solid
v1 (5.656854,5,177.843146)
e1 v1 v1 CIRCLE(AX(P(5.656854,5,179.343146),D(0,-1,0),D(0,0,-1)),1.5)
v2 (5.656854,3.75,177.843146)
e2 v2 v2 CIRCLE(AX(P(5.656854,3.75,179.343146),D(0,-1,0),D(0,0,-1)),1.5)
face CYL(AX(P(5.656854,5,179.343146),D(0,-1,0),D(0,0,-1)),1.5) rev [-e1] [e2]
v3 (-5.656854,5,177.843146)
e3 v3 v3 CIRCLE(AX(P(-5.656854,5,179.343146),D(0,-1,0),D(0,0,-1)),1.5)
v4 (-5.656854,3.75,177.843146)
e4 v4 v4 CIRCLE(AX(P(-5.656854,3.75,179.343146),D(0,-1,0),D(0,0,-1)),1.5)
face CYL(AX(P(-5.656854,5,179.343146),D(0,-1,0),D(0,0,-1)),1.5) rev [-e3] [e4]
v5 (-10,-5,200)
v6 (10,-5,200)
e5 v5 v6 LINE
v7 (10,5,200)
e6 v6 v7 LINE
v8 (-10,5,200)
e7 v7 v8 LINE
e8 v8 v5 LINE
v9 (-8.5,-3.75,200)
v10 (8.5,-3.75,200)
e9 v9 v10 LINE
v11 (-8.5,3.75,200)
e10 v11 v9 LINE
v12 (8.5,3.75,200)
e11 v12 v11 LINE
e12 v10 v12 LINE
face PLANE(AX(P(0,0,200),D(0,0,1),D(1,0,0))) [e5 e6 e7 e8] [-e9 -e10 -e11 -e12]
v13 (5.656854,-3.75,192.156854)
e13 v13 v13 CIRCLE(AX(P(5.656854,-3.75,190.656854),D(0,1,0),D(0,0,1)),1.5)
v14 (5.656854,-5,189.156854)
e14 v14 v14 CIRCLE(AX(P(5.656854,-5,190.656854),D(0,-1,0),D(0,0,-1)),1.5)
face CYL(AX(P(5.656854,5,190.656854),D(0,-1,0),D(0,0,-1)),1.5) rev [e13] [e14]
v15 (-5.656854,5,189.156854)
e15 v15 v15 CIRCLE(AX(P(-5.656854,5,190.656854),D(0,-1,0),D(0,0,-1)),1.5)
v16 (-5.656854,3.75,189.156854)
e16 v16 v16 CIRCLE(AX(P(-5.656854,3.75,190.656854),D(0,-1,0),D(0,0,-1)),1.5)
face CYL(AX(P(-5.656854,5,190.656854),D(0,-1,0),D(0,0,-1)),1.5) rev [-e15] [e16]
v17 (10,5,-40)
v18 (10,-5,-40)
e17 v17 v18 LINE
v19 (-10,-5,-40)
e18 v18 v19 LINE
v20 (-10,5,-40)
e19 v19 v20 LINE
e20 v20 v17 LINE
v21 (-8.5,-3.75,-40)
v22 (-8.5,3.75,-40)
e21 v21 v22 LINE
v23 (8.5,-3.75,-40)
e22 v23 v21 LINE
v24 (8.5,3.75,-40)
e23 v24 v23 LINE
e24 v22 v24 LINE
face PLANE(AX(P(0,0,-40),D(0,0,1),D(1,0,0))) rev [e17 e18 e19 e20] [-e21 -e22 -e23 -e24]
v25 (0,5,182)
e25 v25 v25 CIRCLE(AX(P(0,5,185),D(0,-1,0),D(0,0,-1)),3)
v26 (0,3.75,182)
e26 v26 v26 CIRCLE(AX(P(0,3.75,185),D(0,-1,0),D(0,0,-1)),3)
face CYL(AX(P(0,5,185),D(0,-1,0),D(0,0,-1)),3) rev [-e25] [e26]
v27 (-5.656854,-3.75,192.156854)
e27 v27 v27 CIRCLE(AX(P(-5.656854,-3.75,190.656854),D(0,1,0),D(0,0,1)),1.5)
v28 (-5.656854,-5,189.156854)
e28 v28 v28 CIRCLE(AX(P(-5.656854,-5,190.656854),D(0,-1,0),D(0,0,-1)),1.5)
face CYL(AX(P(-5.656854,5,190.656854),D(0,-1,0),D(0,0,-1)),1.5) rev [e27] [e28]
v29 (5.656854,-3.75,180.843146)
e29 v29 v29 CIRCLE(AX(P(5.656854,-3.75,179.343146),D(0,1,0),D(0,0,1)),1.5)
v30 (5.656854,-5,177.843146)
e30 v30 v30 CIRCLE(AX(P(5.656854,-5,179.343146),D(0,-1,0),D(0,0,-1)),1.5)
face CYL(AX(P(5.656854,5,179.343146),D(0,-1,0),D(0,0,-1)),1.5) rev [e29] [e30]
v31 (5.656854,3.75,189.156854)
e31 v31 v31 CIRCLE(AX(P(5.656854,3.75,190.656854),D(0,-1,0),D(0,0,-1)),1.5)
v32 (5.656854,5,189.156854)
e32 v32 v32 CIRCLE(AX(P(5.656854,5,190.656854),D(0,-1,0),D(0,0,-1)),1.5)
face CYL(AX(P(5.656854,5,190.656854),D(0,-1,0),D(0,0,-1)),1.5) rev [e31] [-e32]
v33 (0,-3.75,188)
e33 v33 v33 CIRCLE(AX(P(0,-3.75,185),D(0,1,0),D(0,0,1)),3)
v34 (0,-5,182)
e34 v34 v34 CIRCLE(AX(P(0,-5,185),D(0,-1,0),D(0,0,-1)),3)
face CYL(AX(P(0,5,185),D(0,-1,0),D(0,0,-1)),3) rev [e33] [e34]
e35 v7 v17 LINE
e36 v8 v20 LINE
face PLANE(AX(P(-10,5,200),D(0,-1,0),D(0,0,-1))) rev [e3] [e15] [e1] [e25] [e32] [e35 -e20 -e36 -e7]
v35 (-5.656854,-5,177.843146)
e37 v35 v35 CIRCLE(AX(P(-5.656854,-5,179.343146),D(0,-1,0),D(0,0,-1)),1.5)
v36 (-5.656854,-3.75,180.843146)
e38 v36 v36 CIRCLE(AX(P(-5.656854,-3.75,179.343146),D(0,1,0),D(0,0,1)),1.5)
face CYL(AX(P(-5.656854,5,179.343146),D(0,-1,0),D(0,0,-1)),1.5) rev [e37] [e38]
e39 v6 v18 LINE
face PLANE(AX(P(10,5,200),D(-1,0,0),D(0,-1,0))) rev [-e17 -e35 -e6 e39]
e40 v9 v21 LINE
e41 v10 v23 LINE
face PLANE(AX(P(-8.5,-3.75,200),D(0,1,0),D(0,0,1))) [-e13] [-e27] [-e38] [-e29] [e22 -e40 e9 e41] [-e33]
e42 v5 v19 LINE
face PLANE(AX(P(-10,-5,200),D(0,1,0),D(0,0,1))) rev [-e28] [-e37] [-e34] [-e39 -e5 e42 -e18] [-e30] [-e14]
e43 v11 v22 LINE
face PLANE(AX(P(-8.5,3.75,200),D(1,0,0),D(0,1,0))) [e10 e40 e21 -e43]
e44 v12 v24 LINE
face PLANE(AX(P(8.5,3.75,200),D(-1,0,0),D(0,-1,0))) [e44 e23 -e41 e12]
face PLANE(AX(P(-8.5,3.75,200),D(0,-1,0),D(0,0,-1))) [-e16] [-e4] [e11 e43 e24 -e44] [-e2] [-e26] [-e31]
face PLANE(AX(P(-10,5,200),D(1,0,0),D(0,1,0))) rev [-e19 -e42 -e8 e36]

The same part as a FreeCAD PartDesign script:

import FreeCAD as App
import Part
import Sketcher

doc = App.newDocument("Part")
params = doc.addObject("Spreadsheet::Sheet", "Params")
for row, (alias, value) in enumerate([
    ("sketch1_width", "20 mm"),
    ("sketch1_width2", "17 mm"),
    ("sketch1_height", "10 mm"),
    ("sketch1_height2", "7.5 mm"),
    ("pad1_length", "200 mm"),
    ("sketch2_diameter", "6 mm"),
    ("pocket1_length", "10 mm"),
    ("sketch3_diameter", "3 mm"),
    ("pocket2_length", "10 mm"),
    ("sketch4_width", "20 mm"),
    ("sketch4_width2", "17 mm"),
    ("sketch4_height", "10 mm"),
    ("sketch4_height2", "7.5 mm"),
    ("pad2_length", "40 mm"),
], start=1):
    params.set(f"A{row}", alias)
    params.set(f"B{row}", "=" + value)
    params.setAlias(f"B{row}", alias)

body = doc.addObject("PartDesign::Body", "Body")

# Sketch on XY plane
sketch1 = body.newObject("Sketcher::SketchObject", "Sketch")
sketch1.AttachmentSupport = (doc.getObject("XY_Plane"), [""])
sketch1.MapMode = "FlatFace"
sketch1.addGeometry(Part.LineSegment(App.Vector(-10, 5, 0), App.Vector(-10, -5, 0)), False)
sketch1.addGeometry(Part.LineSegment(App.Vector(-10, -5, 0), App.Vector(10, -5, 0)), False)
sketch1.addGeometry(Part.LineSegment(App.Vector(10, -5, 0), App.Vector(10, 5, 0)), False)
sketch1.addGeometry(Part.LineSegment(App.Vector(10, 5, 0), App.Vector(-10, 5, 0)), False)
sketch1.addGeometry(Part.LineSegment(App.Vector(8.5, -3.75, 0), App.Vector(-8.5, -3.75, 0)), False)
sketch1.addGeometry(Part.LineSegment(App.Vector(-8.5, -3.75, 0), App.Vector(-8.5, 3.75, 0)), False)
sketch1.addGeometry(Part.LineSegment(App.Vector(-8.5, 3.75, 0), App.Vector(8.5, 3.75, 0)), False)
sketch1.addGeometry(Part.LineSegment(App.Vector(8.5, 3.75, 0), App.Vector(8.5, -3.75, 0)), False)
sketch1.addConstraint(Sketcher.Constraint("Coincident", 0, 2, 1, 1))
sketch1.addConstraint(Sketcher.Constraint("Coincident", 1, 2, 2, 1))
sketch1.addConstraint(Sketcher.Constraint("Coincident", 2, 2, 3, 1))
sketch1.addConstraint(Sketcher.Constraint("Coincident", 3, 2, 0, 1))
sketch1.addConstraint(Sketcher.Constraint("Coincident", 4, 2, 5, 1))
sketch1.addConstraint(Sketcher.Constraint("Coincident", 5, 2, 6, 1))
sketch1.addConstraint(Sketcher.Constraint("Coincident", 6, 2, 7, 1))
sketch1.addConstraint(Sketcher.Constraint("Coincident", 7, 2, 4, 1))
sketch1.addConstraint(Sketcher.Constraint("Vertical", 0))
sketch1.addConstraint(Sketcher.Constraint("Horizontal", 1))
sketch1.addConstraint(Sketcher.Constraint("Vertical", 2))
sketch1.addConstraint(Sketcher.Constraint("Horizontal", 3))
sketch1.addConstraint(Sketcher.Constraint("Horizontal", 4))
sketch1.addConstraint(Sketcher.Constraint("Vertical", 5))
sketch1.addConstraint(Sketcher.Constraint("Horizontal", 6))
sketch1.addConstraint(Sketcher.Constraint("Vertical", 7))
sketch1.addConstraint(Sketcher.Constraint("Symmetric", 0, 2, 2, 2, -1, 1))
sketch1.addConstraint(Sketcher.Constraint("Symmetric", 4, 2, 6, 2, -1, 1))
sketch1.addConstraint(Sketcher.Constraint("DistanceX", 1, 1, 1, 2, 20.0))
sketch1.addConstraint(Sketcher.Constraint("DistanceX", 4, 2, 4, 1, 17.0))
sketch1.addConstraint(Sketcher.Constraint("DistanceY", 0, 2, 0, 1, 10.0))
sketch1.addConstraint(Sketcher.Constraint("DistanceY", 5, 1, 5, 2, 7.5))
sketch1.setExpression("Constraints[18]", "Params.sketch1_width")
sketch1.setExpression("Constraints[19]", "Params.sketch1_width2")
sketch1.setExpression("Constraints[20]", "Params.sketch1_height")
sketch1.setExpression("Constraints[21]", "Params.sketch1_height2")
pad1 = body.newObject("PartDesign::Pad", "Pad")
pad1.Profile = sketch1
pad1.setExpression("Length", "Params.pad1_length")

# Sketch on XZ plane
sketch2 = body.newObject("Sketcher::SketchObject", "Sketch001")
sketch2.AttachmentSupport = (doc.getObject("XZ_Plane"), [""])
sketch2.MapMode = "FlatFace"
sketch2.AttachmentOffset = App.Placement(App.Vector(0, 0, 5), App.Rotation())
sketch2.addGeometry(Part.Circle(App.Vector(0, 185, 0), App.Vector(0, 0, 1), 3), False)
sketch2.addConstraint(Sketcher.Constraint("PointOnObject", 0, 3, -2))
sketch2.addConstraint(Sketcher.Constraint("Diameter", 0, 6.0))
sketch2.addConstraint(Sketcher.Constraint("DistanceY", -1, 1, 0, 3, 185.0))
sketch2.setExpression("Constraints[1]", "Params.sketch2_diameter")
pocket1 = body.newObject("PartDesign::Pocket", "Pocket")
pocket1.Profile = sketch2
pocket1.setExpression("Length", "Params.pocket1_length")

# Sketch on XZ plane
sketch3 = body.newObject("Sketcher::SketchObject", "Sketch002")
sketch3.AttachmentSupport = (doc.getObject("XZ_Plane"), [""])
sketch3.MapMode = "FlatFace"
sketch3.AttachmentOffset = App.Placement(App.Vector(0, 0, 5), App.Rotation())
sketch3.addGeometry(Part.Circle(App.Vector(5.656854, 190.656854, 0), App.Vector(0, 0, 1), 1.5), False)
sketch3.addGeometry(Part.Circle(App.Vector(5.656854, 179.343146, 0), App.Vector(0, 0, 1), 1.5), False)
sketch3.addGeometry(Part.Circle(App.Vector(-5.656854, 179.343146, 0), App.Vector(0, 0, 1), 1.5), False)
sketch3.addGeometry(Part.Circle(App.Vector(-5.656854, 190.656854, 0), App.Vector(0, 0, 1), 1.5), False)
sketch3.addConstraint(Sketcher.Constraint("Equal", 0, 1))
sketch3.addConstraint(Sketcher.Constraint("Equal", 1, 2))
sketch3.addConstraint(Sketcher.Constraint("Equal", 2, 3))
sketch3.addConstraint(Sketcher.Constraint("Symmetric", 1, 3, 2, 3, -2))
sketch3.addConstraint(Sketcher.Constraint("Symmetric", 0, 3, 3, 3, -2))
sketch3.addConstraint(Sketcher.Constraint("Vertical", 0, 3, 1, 3))
sketch3.addConstraint(Sketcher.Constraint("Diameter", 0, 3.0))
sketch3.addConstraint(Sketcher.Constraint("DistanceY", 1, 3, 0, 3, 11.313708))
sketch3.addConstraint(Sketcher.Constraint("DistanceX", 2, 3, 1, 3, 11.313708))
sketch3.addConstraint(Sketcher.Constraint("DistanceY", -1, 1, 0, 3, 190.656854))
sketch3.setExpression("Constraints[6]", "Params.sketch3_diameter")
pocket2 = body.newObject("PartDesign::Pocket", "Pocket001")
pocket2.Profile = sketch3
pocket2.setExpression("Length", "Params.pocket2_length")

# Sketch on XY plane
sketch4 = body.newObject("Sketcher::SketchObject", "Sketch003")
sketch4.AttachmentSupport = (doc.getObject("XY_Plane"), [""])
sketch4.MapMode = "FlatFace"
sketch4.addGeometry(Part.LineSegment(App.Vector(10, 5, 0), App.Vector(10, -5, 0)), False)
sketch4.addGeometry(Part.LineSegment(App.Vector(10, -5, 0), App.Vector(-10, -5, 0)), False)
sketch4.addGeometry(Part.LineSegment(App.Vector(-10, -5, 0), App.Vector(-10, 5, 0)), False)
sketch4.addGeometry(Part.LineSegment(App.Vector(-10, 5, 0), App.Vector(10, 5, 0)), False)
sketch4.addGeometry(Part.LineSegment(App.Vector(-8.5, -3.75, 0), App.Vector(8.5, -3.75, 0)), False)
sketch4.addGeometry(Part.LineSegment(App.Vector(8.5, -3.75, 0), App.Vector(8.5, 3.75, 0)), False)
sketch4.addGeometry(Part.LineSegment(App.Vector(8.5, 3.75, 0), App.Vector(-8.5, 3.75, 0)), False)
sketch4.addGeometry(Part.LineSegment(App.Vector(-8.5, 3.75, 0), App.Vector(-8.5, -3.75, 0)), False)
sketch4.addConstraint(Sketcher.Constraint("Coincident", 0, 2, 1, 1))
sketch4.addConstraint(Sketcher.Constraint("Coincident", 1, 2, 2, 1))
sketch4.addConstraint(Sketcher.Constraint("Coincident", 2, 2, 3, 1))
sketch4.addConstraint(Sketcher.Constraint("Coincident", 3, 2, 0, 1))
sketch4.addConstraint(Sketcher.Constraint("Coincident", 4, 2, 5, 1))
sketch4.addConstraint(Sketcher.Constraint("Coincident", 5, 2, 6, 1))
sketch4.addConstraint(Sketcher.Constraint("Coincident", 6, 2, 7, 1))
sketch4.addConstraint(Sketcher.Constraint("Coincident", 7, 2, 4, 1))
sketch4.addConstraint(Sketcher.Constraint("Vertical", 0))
sketch4.addConstraint(Sketcher.Constraint("Horizontal", 1))
sketch4.addConstraint(Sketcher.Constraint("Vertical", 2))
sketch4.addConstraint(Sketcher.Constraint("Horizontal", 3))
sketch4.addConstraint(Sketcher.Constraint("Horizontal", 4))
sketch4.addConstraint(Sketcher.Constraint("Vertical", 5))
sketch4.addConstraint(Sketcher.Constraint("Horizontal", 6))
sketch4.addConstraint(Sketcher.Constraint("Vertical", 7))
sketch4.addConstraint(Sketcher.Constraint("Symmetric", 0, 2, 2, 2, -1, 1))
sketch4.addConstraint(Sketcher.Constraint("Symmetric", 4, 2, 6, 2, -1, 1))
sketch4.addConstraint(Sketcher.Constraint("DistanceX", 1, 2, 1, 1, 20.0))
sketch4.addConstraint(Sketcher.Constraint("DistanceX", 4, 1, 4, 2, 17.0))
sketch4.addConstraint(Sketcher.Constraint("DistanceY", 0, 2, 0, 1, 10.0))
sketch4.addConstraint(Sketcher.Constraint("DistanceY", 5, 1, 5, 2, 7.5))
sketch4.setExpression("Constraints[18]", "Params.sketch4_width")
sketch4.setExpression("Constraints[19]", "Params.sketch4_width2")
sketch4.setExpression("Constraints[20]", "Params.sketch4_height")
sketch4.setExpression("Constraints[21]", "Params.sketch4_height2")
pad2 = body.newObject("PartDesign::Pad", "Pad001")
pad2.Profile = sketch4
pad2.setExpression("Length", "Params.pad2_length")
pad2.Reversed = True

doc.recompute()
